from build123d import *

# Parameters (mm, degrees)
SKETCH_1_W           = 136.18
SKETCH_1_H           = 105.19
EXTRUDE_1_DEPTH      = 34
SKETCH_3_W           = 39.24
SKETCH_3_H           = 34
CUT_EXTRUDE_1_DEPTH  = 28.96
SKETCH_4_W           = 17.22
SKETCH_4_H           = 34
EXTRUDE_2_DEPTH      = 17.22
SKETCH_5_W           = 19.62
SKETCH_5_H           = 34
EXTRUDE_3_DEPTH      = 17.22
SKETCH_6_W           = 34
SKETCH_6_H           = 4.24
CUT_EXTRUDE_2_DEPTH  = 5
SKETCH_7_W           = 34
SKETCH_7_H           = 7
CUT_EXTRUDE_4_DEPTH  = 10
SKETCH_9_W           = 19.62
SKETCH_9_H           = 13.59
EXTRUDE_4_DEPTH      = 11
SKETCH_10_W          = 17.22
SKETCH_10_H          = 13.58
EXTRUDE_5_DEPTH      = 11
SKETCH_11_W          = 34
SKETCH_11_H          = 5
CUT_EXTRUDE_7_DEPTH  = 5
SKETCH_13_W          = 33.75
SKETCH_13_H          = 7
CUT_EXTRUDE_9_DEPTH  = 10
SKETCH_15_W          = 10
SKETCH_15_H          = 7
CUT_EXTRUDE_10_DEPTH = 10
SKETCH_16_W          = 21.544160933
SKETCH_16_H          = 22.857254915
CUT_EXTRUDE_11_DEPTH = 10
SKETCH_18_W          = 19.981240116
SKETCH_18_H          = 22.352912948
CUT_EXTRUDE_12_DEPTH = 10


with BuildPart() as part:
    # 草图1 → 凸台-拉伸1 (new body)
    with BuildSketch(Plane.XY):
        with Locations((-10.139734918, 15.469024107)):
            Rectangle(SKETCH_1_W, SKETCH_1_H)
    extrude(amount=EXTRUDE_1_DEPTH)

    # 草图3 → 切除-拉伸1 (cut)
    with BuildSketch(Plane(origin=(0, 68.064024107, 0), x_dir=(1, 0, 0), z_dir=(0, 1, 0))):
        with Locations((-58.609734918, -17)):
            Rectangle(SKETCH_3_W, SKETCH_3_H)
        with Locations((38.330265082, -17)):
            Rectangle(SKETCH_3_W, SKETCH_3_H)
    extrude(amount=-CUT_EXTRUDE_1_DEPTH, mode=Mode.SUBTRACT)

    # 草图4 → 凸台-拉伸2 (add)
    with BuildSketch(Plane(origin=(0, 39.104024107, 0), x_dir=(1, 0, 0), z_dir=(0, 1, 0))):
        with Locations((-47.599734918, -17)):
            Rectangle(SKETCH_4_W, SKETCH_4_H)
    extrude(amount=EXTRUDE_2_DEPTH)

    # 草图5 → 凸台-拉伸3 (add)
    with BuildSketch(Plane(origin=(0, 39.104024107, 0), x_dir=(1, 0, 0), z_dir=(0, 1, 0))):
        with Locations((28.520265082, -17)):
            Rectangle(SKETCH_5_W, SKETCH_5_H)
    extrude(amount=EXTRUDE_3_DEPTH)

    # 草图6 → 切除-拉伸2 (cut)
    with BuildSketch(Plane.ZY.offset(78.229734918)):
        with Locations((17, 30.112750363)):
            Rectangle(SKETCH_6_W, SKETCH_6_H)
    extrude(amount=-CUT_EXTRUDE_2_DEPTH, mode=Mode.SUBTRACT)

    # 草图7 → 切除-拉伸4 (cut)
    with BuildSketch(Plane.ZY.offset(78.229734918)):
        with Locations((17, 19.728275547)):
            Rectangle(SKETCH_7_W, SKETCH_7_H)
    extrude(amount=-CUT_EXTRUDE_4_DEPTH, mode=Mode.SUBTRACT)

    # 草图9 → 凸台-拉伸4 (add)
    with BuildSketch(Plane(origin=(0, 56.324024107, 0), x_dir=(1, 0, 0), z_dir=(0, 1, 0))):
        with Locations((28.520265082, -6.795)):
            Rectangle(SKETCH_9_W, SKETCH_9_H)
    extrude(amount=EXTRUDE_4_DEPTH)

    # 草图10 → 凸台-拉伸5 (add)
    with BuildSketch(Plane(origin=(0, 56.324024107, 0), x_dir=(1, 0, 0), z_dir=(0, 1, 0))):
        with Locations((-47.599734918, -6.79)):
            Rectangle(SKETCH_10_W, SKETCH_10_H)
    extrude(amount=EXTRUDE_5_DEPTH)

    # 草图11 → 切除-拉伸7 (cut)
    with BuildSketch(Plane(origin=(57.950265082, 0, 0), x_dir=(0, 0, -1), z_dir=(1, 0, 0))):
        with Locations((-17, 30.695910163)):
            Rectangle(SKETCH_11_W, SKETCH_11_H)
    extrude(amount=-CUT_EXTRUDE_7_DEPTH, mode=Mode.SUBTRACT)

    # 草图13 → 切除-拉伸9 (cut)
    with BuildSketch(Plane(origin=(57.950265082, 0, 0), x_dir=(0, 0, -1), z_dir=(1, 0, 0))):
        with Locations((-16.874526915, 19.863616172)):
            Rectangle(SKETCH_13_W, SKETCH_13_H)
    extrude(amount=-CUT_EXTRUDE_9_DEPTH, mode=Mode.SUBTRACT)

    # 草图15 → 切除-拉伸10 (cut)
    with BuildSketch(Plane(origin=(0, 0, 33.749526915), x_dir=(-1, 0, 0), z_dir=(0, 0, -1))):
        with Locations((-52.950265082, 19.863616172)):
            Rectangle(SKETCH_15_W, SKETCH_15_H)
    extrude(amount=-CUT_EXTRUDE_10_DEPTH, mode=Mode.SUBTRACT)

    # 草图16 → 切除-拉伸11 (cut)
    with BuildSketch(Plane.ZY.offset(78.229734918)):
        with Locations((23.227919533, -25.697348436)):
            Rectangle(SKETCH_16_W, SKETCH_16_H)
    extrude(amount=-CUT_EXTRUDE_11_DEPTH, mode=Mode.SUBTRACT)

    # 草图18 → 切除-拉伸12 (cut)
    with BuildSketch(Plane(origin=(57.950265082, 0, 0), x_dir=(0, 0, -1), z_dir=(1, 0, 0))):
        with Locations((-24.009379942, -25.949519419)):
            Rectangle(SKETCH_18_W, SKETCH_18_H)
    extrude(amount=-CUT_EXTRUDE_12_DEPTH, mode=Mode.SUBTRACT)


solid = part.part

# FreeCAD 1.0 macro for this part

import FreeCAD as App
import Part
import Sketcher

V = App.Vector
Q = App.Units.Quantity

doc = App.newDocument("Part")
body = doc.addObject("PartDesign::Body", "Body")

# Sketch on XY plane
sketch1 = body.newObject("Sketcher::SketchObject", "Sketch")
sketch1.AttachmentSupport = (doc.getObject("XY_Plane"), [""])
sketch1.MapMode = "FlatFace"
sketch1.addGeometry(Part.LineSegment(V(-78, 68, 0), V(-78, -37, 0)), False)
sketch1.addGeometry(Part.LineSegment(V(-78, -37, 0), V(58, -37, 0)), False)
sketch1.addGeometry(Part.LineSegment(V(58, -37, 0), V(58, 68, 0)), False)
sketch1.addGeometry(Part.LineSegment(V(58, 68, 0), V(-78, 68, 0)), False)
sketch1.addConstraint(Sketcher.Constraint("Coincident", 0, 2, 1, 1))
sketch1.addConstraint(Sketcher.Constraint("Coincident", 1, 2, 2, 1))
sketch1.addConstraint(Sketcher.Constraint("Coincident", 2, 2, 3, 1))
sketch1.addConstraint(Sketcher.Constraint("Coincident", 3, 2, 0, 1))
sketch1.addConstraint(Sketcher.Constraint("Vertical", 0))
sketch1.addConstraint(Sketcher.Constraint("Horizontal", 1))
sketch1.addConstraint(Sketcher.Constraint("Vertical", 2))
sketch1.addConstraint(Sketcher.Constraint("Horizontal", 3))
sketch1.addConstraint(Sketcher.Constraint("DistanceX", 1, 1, 1, 2, Q("136.18 mm")))
sketch1.addConstraint(Sketcher.Constraint("DistanceY", 0, 2, 0, 1, Q("105.19 mm")))
sketch1.addConstraint(Sketcher.Constraint("DistanceX", 0, 2, -1, 1, Q("78.229735 mm")))
sketch1.addConstraint(Sketcher.Constraint("DistanceY", 0, 2, -1, 1, Q("37.125976 mm")))
pad1 = body.newObject("PartDesign::Pad", "Pad")
pad1.Profile = sketch1
pad1.Length = 34

# Sketch on XZ plane
sketch2 = body.newObject("Sketcher::SketchObject", "Sketch001")
sketch2.AttachmentSupport = (doc.getObject("XZ_Plane"), [""])
sketch2.MapMode = "FlatFace"
sketch2.AttachmentOffset = App.Placement(V(0, 0, -68.064024), App.Rotation())
sketch2.addGeometry(Part.LineSegment(V(-78, 0, 0), V(-78, 34, 0)), False)
sketch2.addGeometry(Part.LineSegment(V(-78, 34, 0), V(-39, 34, 0)), False)
sketch2.addGeometry(Part.LineSegment(V(-39, 34, 0), V(-39, 0, 0)), False)
sketch2.addGeometry(Part.LineSegment(V(-39, 0, 0), V(-78, 0, 0)), False)
sketch2.addGeometry(Part.LineSegment(V(19, 0, 0), V(19, 34, 0)), False)
sketch2.addGeometry(Part.LineSegment(V(19, 34, 0), V(58, 34, 0)), False)
sketch2.addGeometry(Part.LineSegment(V(58, 34, 0), V(58, 0, 0)), False)
sketch2.addGeometry(Part.LineSegment(V(58, 0, 0), V(19, 0, 0)), False)
sketch2.addConstraint(Sketcher.Constraint("Coincident", 0, 2, 1, 1))
sketch2.addConstraint(Sketcher.Constraint("Coincident", 1, 2, 2, 1))
sketch2.addConstraint(Sketcher.Constraint("Coincident", 2, 2, 3, 1))
sketch2.addConstraint(Sketcher.Constraint("Coincident", 3, 2, 0, 1))
sketch2.addConstraint(Sketcher.Constraint("Coincident", 4, 2, 5, 1))
sketch2.addConstraint(Sketcher.Constraint("Coincident", 5, 2, 6, 1))
sketch2.addConstraint(Sketcher.Constraint("Coincident", 6, 2, 7, 1))
sketch2.addConstraint(Sketcher.Constraint("Coincident", 7, 2, 4, 1))
sketch2.addConstraint(Sketcher.Constraint("Vertical", 0))
sketch2.addConstraint(Sketcher.Constraint("Horizontal", 1))
sketch2.addConstraint(Sketcher.Constraint("Vertical", 2))
sketch2.addConstraint(Sketcher.Constraint("Horizontal", 3))
sketch2.addConstraint(Sketcher.Constraint("Vertical", 4))
sketch2.addConstraint(Sketcher.Constraint("Horizontal", 5))
sketch2.addConstraint(Sketcher.Constraint("Vertical", 6))
sketch2.addConstraint(Sketcher.Constraint("Horizontal", 7))
sketch2.addConstraint(Sketcher.Constraint("PointOnObject", 2, 2, -1))
sketch2.addConstraint(Sketcher.Constraint("PointOnObject", 6, 2, -1))
sketch2.addConstraint(Sketcher.Constraint("Horizontal", 1, 2, 4, 2))
sketch2.addConstraint(Sketcher.Constraint("Equal", 3, 5))
sketch2.addConstraint(Sketcher.Constraint("DistanceY", 0, 1, 0, 2, Q("34 mm")))
sketch2.addConstraint(Sketcher.Constraint("DistanceX", 1, 1, 1, 2, Q("39.24 mm")))
sketch2.addConstraint(Sketcher.Constraint("DistanceX", 1, 2, 4, 2, Q("57.7 mm")))
sketch2.addConstraint(Sketcher.Constraint("DistanceX", 0, 2, -1, 1, Q("78.229735 mm")))
pocket1 = body.newObject("PartDesign::Pocket", "Pocket")
pocket1.Profile = sketch2
pocket1.Length = 28.96
pocket1.Reversed = True

# Sketch on XZ plane
sketch3 = body.newObject("Sketcher::SketchObject", "Sketch002")
sketch3.AttachmentSupport = (doc.getObject("XZ_Plane"), [""])
sketch3.MapMode = "FlatFace"
sketch3.AttachmentOffset = App.Placement(V(0, 0, -39.104024), App.Rotation())
sketch3.addGeometry(Part.LineSegment(V(-56, 0, 0), V(-56, 34, 0)), False)
sketch3.addGeometry(Part.LineSegment(V(-56, 34, 0), V(-39, 34, 0)), False)
sketch3.addGeometry(Part.LineSegment(V(-39, 34, 0), V(-39, 0, 0)), False)
sketch3.addGeometry(Part.LineSegment(V(-39, 0, 0), V(-56, 0, 0)), False)
sketch3.addConstraint(Sketcher.Constraint("Coincident", 0, 2, 1, 1))
sketch3.addConstraint(Sketcher.Constraint("Coincident", 1, 2, 2, 1))
sketch3.addConstraint(Sketcher.Constraint("Coincident", 2, 2, 3, 1))
sketch3.addConstraint(Sketcher.Constraint("Coincident", 3, 2, 0, 1))
sketch3.addConstraint(Sketcher.Constraint("Vertical", 0))
sketch3.addConstraint(Sketcher.Constraint("Horizontal", 1))
sketch3.addConstraint(Sketcher.Constraint("Vertical", 2))
sketch3.addConstraint(Sketcher.Constraint("Horizontal", 3))
sketch3.addConstraint(Sketcher.Constraint("PointOnObject", 2, 2, -1))
sketch3.addConstraint(Sketcher.Constraint("DistanceY", 0, 1, 0, 2, Q("34 mm")))
sketch3.addConstraint(Sketcher.Constraint("DistanceX", 1, 1, 1, 2, Q("17.22 mm")))
sketch3.addConstraint(Sketcher.Constraint("DistanceX", 0, 2, -1, 1, Q("56.209735 mm")))
pad2 = body.newObject("PartDesign::Pad", "Pad001")
pad2.Profile = sketch3
pad2.Length = 17.22
pad2.Reversed = True

# Sketch on XZ plane
sketch4 = body.newObject("Sketcher::SketchObject", "Sketch003")
sketch4.AttachmentSupport = (doc.getObject("XZ_Plane"), [""])
sketch4.MapMode = "FlatFace"
sketch4.AttachmentOffset = App.Placement(V(0, 0, -39.104024), App.Rotation())
sketch4.addGeometry(Part.LineSegment(V(19, 0, 0), V(19, 34, 0)), False)
sketch4.addGeometry(Part.LineSegment(V(19, 34, 0), V(38, 34, 0)), False)
sketch4.addGeometry(Part.LineSegment(V(38, 34, 0), V(38, 0, 0)), False)
sketch4.addGeometry(Part.LineSegment(V(38, 0, 0), V(19, 0, 0)), False)
sketch4.addConstraint(Sketcher.Constraint("Coincident", 0, 2, 1, 1))
sketch4.addConstraint(Sketcher.Constraint("Coincident", 1, 2, 2, 1))
sketch4.addConstraint(Sketcher.Constraint("Coincident", 2, 2, 3, 1))
sketch4.addConstraint(Sketcher.Constraint("Coincident", 3, 2, 0, 1))
sketch4.addConstraint(Sketcher.Constraint("Vertical", 0))
sketch4.addConstraint(Sketcher.Constraint("Horizontal", 1))
sketch4.addConstraint(Sketcher.Constraint("Vertical", 2))
sketch4.addConstraint(Sketcher.Constraint("Horizontal", 3))
sketch4.addConstraint(Sketcher.Constraint("PointOnObject", 2, 2, -1))
sketch4.addConstraint(Sketcher.Constraint("DistanceY", 0, 1, 0, 2, Q("34 mm")))
sketch4.addConstraint(Sketcher.Constraint("DistanceX", 1, 1, 1, 2, Q("19.62 mm")))
sketch4.addConstraint(Sketcher.Constraint("DistanceX", -1, 1, 0, 2, Q("18.710265 mm")))
pad3 = body.newObject("PartDesign::Pad", "Pad002")
pad3.Profile = sketch4
pad3.Length = 17.22
pad3.Reversed = True

# Sketch on YZ plane
sketch5 = body.newObject("Sketcher::SketchObject", "Sketch004")
sketch5.AttachmentSupport = (doc.getObject("YZ_Plane"), [""])
sketch5.MapMode = "FlatFace"
sketch5.AttachmentOffset = App.Placement(V(0, 0, -78.229735), App.Rotation())
sketch5.addGeometry(Part.LineSegment(V(32.2, 0, 0), V(28, 0, 0)), False)
sketch5.addGeometry(Part.LineSegment(V(28, 0, 0), V(28, 34, 0)), False)
sketch5.addGeometry(Part.LineSegment(V(28, 34, 0), V(32.2, 34, 0)), False)
sketch5.addGeometry(Part.LineSegment(V(32.2, 34, 0), V(32.2, 0, 0)), False)
sketch5.addConstraint(Sketcher.Constraint("Coincident", 0, 2, 1, 1))
sketch5.addConstraint(Sketcher.Constraint("Coincident", 1, 2, 2, 1))
sketch5.addConstraint(Sketcher.Constraint("Coincident", 2, 2, 3, 1))
sketch5.addConstraint(Sketcher.Constraint("Coincident", 3, 2, 0, 1))
sketch5.addConstraint(Sketcher.Constraint("Horizontal", 0))
sketch5.addConstraint(Sketcher.Constraint("Vertical", 1))
sketch5.addConstraint(Sketcher.Constraint("Horizontal", 2))
sketch5.addConstraint(Sketcher.Constraint("Vertical", 3))
sketch5.addConstraint(Sketcher.Constraint("PointOnObject", 0, 2, -1))
sketch5.addConstraint(Sketcher.Constraint("DistanceY", 1, 1, 1, 2, Q("34 mm")))
sketch5.addConstraint(Sketcher.Constraint("DistanceX", 0, 2, 0, 1, Q("4.24 mm")))
sketch5.addConstraint(Sketcher.Constraint("DistanceX", -1, 1, 0, 2, Q("27.99275 mm")))
pocket2 = body.newObject("PartDesign::Pocket", "Pocket001")
pocket2.Profile = sketch5
pocket2.Length = 5
pocket2.Reversed = True

# Sketch on YZ plane
sketch6 = body.newObject("Sketcher::SketchObject", "Sketch005")
sketch6.AttachmentSupport = (doc.getObject("YZ_Plane"), [""])
sketch6.MapMode = "FlatFace"
sketch6.AttachmentOffset = App.Placement(V(0, 0, -78.229735), App.Rotation())
sketch6.addGeometry(Part.LineSegment(V(23, 0, 0), V(16, 0, 0)), False)
sketch6.addGeometry(Part.LineSegment(V(16, 0, 0), V(16, 34, 0)), False)
sketch6.addGeometry(Part.LineSegment(V(16, 34, 0), V(23, 34, 0)), False)
sketch6.addGeometry(Part.LineSegment(V(23, 34, 0), V(23, 0, 0)), False)
sketch6.addConstraint(Sketcher.Constraint("Coincident", 0, 2, 1, 1))
sketch6.addConstraint(Sketcher.Constraint("Coincident", 1, 2, 2, 1))
sketch6.addConstraint(Sketcher.Constraint("Coincident", 2, 2, 3, 1))
sketch6.addConstraint(Sketcher.Constraint("Coincident", 3, 2, 0, 1))
sketch6.addConstraint(Sketcher.Constraint("Horizontal", 0))
sketch6.addConstraint(Sketcher.Constraint("Vertical", 1))
sketch6.addConstraint(Sketcher.Constraint("Horizontal", 2))
sketch6.addConstraint(Sketcher.Constraint("Vertical", 3))
sketch6.addConstraint(Sketcher.Constraint("PointOnObject", 0, 2, -1))
sketch6.addConstraint(Sketcher.Constraint("DistanceX", 0, 2, 0, 1, Q("7 mm")))
sketch6.addConstraint(Sketcher.Constraint("DistanceY", 1, 1, 1, 2, Q("34 mm")))
sketch6.addConstraint(Sketcher.Constraint("DistanceX", -1, 1, 0, 2, Q("16.228276 mm")))
pocket3 = body.newObject("PartDesign::Pocket", "Pocket002")
pocket3.Profile = sketch6
pocket3.Length = 10
pocket3.Reversed = True

# Sketch on XZ plane
sketch7 = body.newObject("Sketcher::SketchObject", "Sketch006")
sketch7.AttachmentSupport = (doc.getObject("XZ_Plane"), [""])
sketch7.MapMode = "FlatFace"
sketch7.AttachmentOffset = App.Placement(V(0, 0, -56.324024), App.Rotation())
sketch7.addGeometry(Part.LineSegment(V(19, 0, 0), V(19, 14, 0)), False)
sketch7.addGeometry(Part.LineSegment(V(19, 14, 0), V(38, 14, 0)), False)
sketch7.addGeometry(Part.LineSegment(V(38, 14, 0), V(38, 0, 0)), False)
sketch7.addGeometry(Part.LineSegment(V(38, 0, 0), V(19, 0, 0)), False)
sketch7.addConstraint(Sketcher.Constraint("Coincident", 0, 2, 1, 1))
sketch7.addConstraint(Sketcher.Constraint("Coincident", 1, 2, 2, 1))
sketch7.addConstraint(Sketcher.Constraint("Coincident", 2, 2, 3, 1))
sketch7.addConstraint(Sketcher.Constraint("Coincident", 3, 2, 0, 1))
sketch7.addConstraint(Sketcher.Constraint("Vertical", 0))
sketch7.addConstraint(Sketcher.Constraint("Horizontal", 1))
sketch7.addConstraint(Sketcher.Constraint("Vertical", 2))
sketch7.addConstraint(Sketcher.Constraint("Horizontal", 3))
sketch7.addConstraint(Sketcher.Constraint("PointOnObject", 2, 2, -1))
sketch7.addConstraint(Sketcher.Constraint("DistanceX", 1, 1, 1, 2, Q("19.62 mm")))
sketch7.addConstraint(Sketcher.Constraint("DistanceY", 0, 1, 0, 2, Q("13.59 mm")))
sketch7.addConstraint(Sketcher.Constraint("DistanceX", -1, 1, 0, 2, Q("18.710265 mm")))
pad4 = body.newObject("PartDesign::Pad", "Pad003")
pad4.Profile = sketch7
pad4.Length = 11
pad4.Reversed = True

# Sketch on XZ plane
sketch8 = body.newObject("Sketcher::SketchObject", "Sketch007")
sketch8.AttachmentSupport = (doc.getObject("XZ_Plane"), [""])
sketch8.MapMode = "FlatFace"
sketch8.AttachmentOffset = App.Placement(V(0, 0, -56.324024), App.Rotation())
sketch8.addGeometry(Part.LineSegment(V(-56, 0, 0), V(-56, 14, 0)), False)
sketch8.addGeometry(Part.LineSegment(V(-56, 14, 0), V(-39, 14, 0)), False)
sketch8.addGeometry(Part.LineSegment(V(-39, 14, 0), V(-39, 0, 0)), False)
sketch8.addGeometry(Part.LineSegment(V(-39, 0, 0), V(-56, 0, 0)), False)
sketch8.addConstraint(Sketcher.Constraint("Coincident", 0, 2, 1, 1))
sketch8.addConstraint(Sketcher.Constraint("Coincident", 1, 2, 2, 1))
sketch8.addConstraint(Sketcher.Constraint("Coincident", 2, 2, 3, 1))
sketch8.addConstraint(Sketcher.Constraint("Coincident", 3, 2, 0, 1))
sketch8.addConstraint(Sketcher.Constraint("Vertical", 0))
sketch8.addConstraint(Sketcher.Constraint("Horizontal", 1))
sketch8.addConstraint(Sketcher.Constraint("Vertical", 2))
sketch8.addConstraint(Sketcher.Constraint("Horizontal", 3))
sketch8.addConstraint(Sketcher.Constraint("PointOnObject", 2, 2, -1))
sketch8.addConstraint(Sketcher.Constraint("DistanceX", 1, 1, 1, 2, Q("17.22 mm")))
sketch8.addConstraint(Sketcher.Constraint("DistanceY", 0, 1, 0, 2, Q("13.58 mm")))
sketch8.addConstraint(Sketcher.Constraint("DistanceX", 0, 2, -1, 1, Q("56.209735 mm")))
pad5 = body.newObject("PartDesign::Pad", "Pad004")
pad5.Profile = sketch8
pad5.Length = 11
pad5.Reversed = True

# Sketch on YZ plane
sketch9 = body.newObject("Sketcher::SketchObject", "Sketch008")
sketch9.AttachmentSupport = (doc.getObject("YZ_Plane"), [""])
sketch9.MapMode = "FlatFace"
sketch9.AttachmentOffset = App.Placement(V(0, 0, 57.950265), App.Rotation())
sketch9.addGeometry(Part.LineSegment(V(33, 34, 0), V(28, 34, 0)), False)
sketch9.addGeometry(Part.LineSegment(V(28, 34, 0), V(28, 0, 0)), False)
sketch9.addGeometry(Part.LineSegment(V(28, 0, 0), V(33, 0, 0)), False)
sketch9.addGeometry(Part.LineSegment(V(33, 0, 0), V(33, 34, 0)), False)
sketch9.addConstraint(Sketcher.Constraint("Coincident", 0, 2, 1, 1))
sketch9.addConstraint(Sketcher.Constraint("Coincident", 1, 2, 2, 1))
sketch9.addConstraint(Sketcher.Constraint("Coincident", 2, 2, 3, 1))
sketch9.addConstraint(Sketcher.Constraint("Coincident", 3, 2, 0, 1))
sketch9.addConstraint(Sketcher.Constraint("Horizontal", 0))
sketch9.addConstraint(Sketcher.Constraint("Vertical", 1))
sketch9.addConstraint(Sketcher.Constraint("Horizontal", 2))
sketch9.addConstraint(Sketcher.Constraint("Vertical", 3))
sketch9.addConstraint(Sketcher.Constraint("PointOnObject", 1, 2, -1))
sketch9.addConstraint(Sketcher.Constraint("DistanceX", 0, 2, 0, 1, Q("5 mm")))
sketch9.addConstraint(Sketcher.Constraint("DistanceY", 1, 2, 1, 1, Q("34 mm")))
sketch9.addConstraint(Sketcher.Constraint("DistanceX", -1, 1, 0, 2, Q("28.19591 mm")))
pocket4 = body.newObject("PartDesign::Pocket", "Pocket003")
pocket4.Profile = sketch9
pocket4.Length = 5

# Sketch on YZ plane
sketch10 = body.newObject("Sketcher::SketchObject", "Sketch009")
sketch10.AttachmentSupport = (doc.getObject("YZ_Plane"), [""])
sketch10.MapMode = "FlatFace"
sketch10.AttachmentOffset = App.Placement(V(0, 0, 57.950265), App.Rotation())
sketch10.addGeometry(Part.LineSegment(V(23, 34, 0), V(16, 34, 0)), False)
sketch10.addGeometry(Part.LineSegment(V(16, 34, 0), V(16, 0, 0)), False)
sketch10.addGeometry(Part.LineSegment(V(16, 0, 0), V(23, 0, 0)), False)
sketch10.addGeometry(Part.LineSegment(V(23, 0, 0), V(23, 34, 0)), False)
sketch10.addConstraint(Sketcher.Constraint("Coincident", 0, 2, 1, 1))
sketch10.addConstraint(Sketcher.Constraint("Coincident", 1, 2, 2, 1))
sketch10.addConstraint(Sketcher.Constraint("Coincident", 2, 2, 3, 1))
sketch10.addConstraint(Sketcher.Constraint("Coincident", 3, 2, 0, 1))
sketch10.addConstraint(Sketcher.Constraint("Horizontal", 0))
sketch10.addConstraint(Sketcher.Constraint("Vertical", 1))
sketch10.addConstraint(Sketcher.Constraint("Horizontal", 2))
sketch10.addConstraint(Sketcher.Constraint("Vertical", 3))
sketch10.addConstraint(Sketcher.Constraint("DistanceX", 0, 2, 0, 1, Q("7 mm")))
sketch10.addConstraint(Sketcher.Constraint("DistanceY", 1, 2, 1, 1, Q("33.75 mm")))
sketch10.addConstraint(Sketcher.Constraint("DistanceX", -1, 1, 0, 2, Q("16.363616 mm")))
sketch10.addConstraint(Sketcher.Constraint("DistanceY", -1, 1, 0, 2, Q("33.749527 mm")))
pocket5 = body.newObject("PartDesign::Pocket", "Pocket004")
pocket5.Profile = sketch10
pocket5.Length = 10

# Sketch on XY plane
sketch11 = body.newObject("Sketcher::SketchObject", "Sketch010")
sketch11.AttachmentSupport = (doc.getObject("XY_Plane"), [""])
sketch11.MapMode = "FlatFace"
sketch11.AttachmentOffset = App.Placement(V(0, 0, 33.749527), App.Rotation())
sketch11.addGeometry(Part.LineSegment(V(58, 23, 0), V(58, 16, 0)), False)
sketch11.addGeometry(Part.LineSegment(V(58, 16, 0), V(48, 16, 0)), False)
sketch11.addGeometry(Part.LineSegment(V(48, 16, 0), V(48, 23, 0)), False)
sketch11.addGeometry(Part.LineSegment(V(48, 23, 0), V(58, 23, 0)), False)
sketch11.addConstraint(Sketcher.Constraint("Coincident", 0, 2, 1, 1))
sketch11.addConstraint(Sketcher.Constraint("Coincident", 1, 2, 2, 1))
sketch11.addConstraint(Sketcher.Constraint("Coincident", 2, 2, 3, 1))
sketch11.addConstraint(Sketcher.Constraint("Coincident", 3, 2, 0, 1))
sketch11.addConstraint(Sketcher.Constraint("Vertical", 0))
sketch11.addConstraint(Sketcher.Constraint("Horizontal", 1))
sketch11.addConstraint(Sketcher.Constraint("Vertical", 2))
sketch11.addConstraint(Sketcher.Constraint("Horizontal", 3))
sketch11.addConstraint(Sketcher.Constraint("DistanceX", 1, 2, 1, 1, Q("10 mm")))
sketch11.addConstraint(Sketcher.Constraint("DistanceY", 0, 2, 0, 1, Q("7 mm")))
sketch11.addConstraint(Sketcher.Constraint("DistanceX", -1, 1, 0, 2, Q("57.950265 mm")))
sketch11.addConstraint(Sketcher.Constraint("DistanceY", -1, 1, 0, 2, Q("16.363616 mm")))
pocket6 = body.newObject("PartDesign::Pocket", "Pocket005")
pocket6.Profile = sketch11
pocket6.Length = 10
pocket6.Reversed = True

# Sketch on YZ plane
sketch12 = body.newObject("Sketcher::SketchObject", "Sketch011")
sketch12.AttachmentSupport = (doc.getObject("YZ_Plane"), [""])
sketch12.MapMode = "FlatFace"
sketch12.AttachmentOffset = App.Placement(V(0, 0, -78.229735), App.Rotation())
sketch12.addGeometry(Part.LineSegment(V(-14, 12, 0), V(-37, 12, 0)), False)
sketch12.addGeometry(Part.LineSegment(V(-37, 12, 0), V(-37, 34, 0)), False)
sketch12.addGeometry(Part.LineSegment(V(-37, 34, 0), V(-14, 34, 0)), False)
sketch12.addGeometry(Part.LineSegment(V(-14, 34, 0), V(-14, 12, 0)), False)
sketch12.addConstraint(Sketcher.Constraint("Coincident", 0, 2, 1, 1))
sketch12.addConstraint(Sketcher.Constraint("Coincident", 1, 2, 2, 1))
sketch12.addConstraint(Sketcher.Constraint("Coincident", 2, 2, 3, 1))
sketch12.addConstraint(Sketcher.Constraint("Coincident", 3, 2, 0, 1))
sketch12.addConstraint(Sketcher.Constraint("Horizontal", 0))
sketch12.addConstraint(Sketcher.Constraint("Vertical", 1))
sketch12.addConstraint(Sketcher.Constraint("Horizontal", 2))
sketch12.addConstraint(Sketcher.Constraint("Vertical", 3))
sketch12.addConstraint(Sketcher.Constraint("DistanceY", -1, 1, 1, 2, Q("34 mm")))
sketch12.addConstraint(Sketcher.Constraint("DistanceY", 1, 1, 1, 2, Q("21.544161 mm")))
sketch12.addConstraint(Sketcher.Constraint("DistanceX", 0, 2, 0, 1, Q("22.857255 mm")))
sketch12.addConstraint(Sketcher.Constraint("DistanceX", 2, 2, -1, 1, Q("14.268721 mm")))
pocket7 = body.newObject("PartDesign::Pocket", "Pocket006")
pocket7.Profile = sketch12
pocket7.Length = 10
pocket7.Reversed = True

# Sketch on YZ plane
sketch13 = body.newObject("Sketcher::SketchObject", "Sketch012")
sketch13.AttachmentSupport = (doc.getObject("YZ_Plane"), [""])
sketch13.MapMode = "FlatFace"
sketch13.AttachmentOffset = App.Placement(V(0, 0, 57.950265), App.Rotation())
sketch13.addGeometry(Part.LineSegment(V(-15, 34, 0), V(-37, 34, 0)), False)
sketch13.addGeometry(Part.LineSegment(V(-37, 34, 0), V(-37, 14, 0)), False)
sketch13.addGeometry(Part.LineSegment(V(-37, 14, 0), V(-15, 14, 0)), False)
sketch13.addGeometry(Part.LineSegment(V(-15, 14, 0), V(-15, 34, 0)), False)
sketch13.addConstraint(Sketcher.Constraint("Coincident", 0, 2, 1, 1))
sketch13.addConstraint(Sketcher.Constraint("Coincident", 1, 2, 2, 1))
sketch13.addConstraint(Sketcher.Constraint("Coincident", 2, 2, 3, 1))
sketch13.addConstraint(Sketcher.Constraint("Coincident", 3, 2, 0, 1))
sketch13.addConstraint(Sketcher.Constraint("Horizontal", 0))
sketch13.addConstraint(Sketcher.Constraint("Vertical", 1))
sketch13.addConstraint(Sketcher.Constraint("Horizontal", 2))
sketch13.addConstraint(Sketcher.Constraint("Vertical", 3))
sketch13.addConstraint(Sketcher.Constraint("DistanceY", -1, 1, 0, 2, Q("34 mm")))
sketch13.addConstraint(Sketcher.Constraint("DistanceY", 1, 2, 1, 1, Q("19.98124 mm")))
sketch13.addConstraint(Sketcher.Constraint("DistanceX", 0, 2, 0, 1, Q("22.352913 mm")))
sketch13.addConstraint(Sketcher.Constraint("DistanceX", 0, 2, -1, 1, Q("37.125976 mm")))
pocket8 = body.newObject("PartDesign::Pocket", "Pocket007")
pocket8.Profile = sketch13
pocket8.Length = 10

doc.recompute()
